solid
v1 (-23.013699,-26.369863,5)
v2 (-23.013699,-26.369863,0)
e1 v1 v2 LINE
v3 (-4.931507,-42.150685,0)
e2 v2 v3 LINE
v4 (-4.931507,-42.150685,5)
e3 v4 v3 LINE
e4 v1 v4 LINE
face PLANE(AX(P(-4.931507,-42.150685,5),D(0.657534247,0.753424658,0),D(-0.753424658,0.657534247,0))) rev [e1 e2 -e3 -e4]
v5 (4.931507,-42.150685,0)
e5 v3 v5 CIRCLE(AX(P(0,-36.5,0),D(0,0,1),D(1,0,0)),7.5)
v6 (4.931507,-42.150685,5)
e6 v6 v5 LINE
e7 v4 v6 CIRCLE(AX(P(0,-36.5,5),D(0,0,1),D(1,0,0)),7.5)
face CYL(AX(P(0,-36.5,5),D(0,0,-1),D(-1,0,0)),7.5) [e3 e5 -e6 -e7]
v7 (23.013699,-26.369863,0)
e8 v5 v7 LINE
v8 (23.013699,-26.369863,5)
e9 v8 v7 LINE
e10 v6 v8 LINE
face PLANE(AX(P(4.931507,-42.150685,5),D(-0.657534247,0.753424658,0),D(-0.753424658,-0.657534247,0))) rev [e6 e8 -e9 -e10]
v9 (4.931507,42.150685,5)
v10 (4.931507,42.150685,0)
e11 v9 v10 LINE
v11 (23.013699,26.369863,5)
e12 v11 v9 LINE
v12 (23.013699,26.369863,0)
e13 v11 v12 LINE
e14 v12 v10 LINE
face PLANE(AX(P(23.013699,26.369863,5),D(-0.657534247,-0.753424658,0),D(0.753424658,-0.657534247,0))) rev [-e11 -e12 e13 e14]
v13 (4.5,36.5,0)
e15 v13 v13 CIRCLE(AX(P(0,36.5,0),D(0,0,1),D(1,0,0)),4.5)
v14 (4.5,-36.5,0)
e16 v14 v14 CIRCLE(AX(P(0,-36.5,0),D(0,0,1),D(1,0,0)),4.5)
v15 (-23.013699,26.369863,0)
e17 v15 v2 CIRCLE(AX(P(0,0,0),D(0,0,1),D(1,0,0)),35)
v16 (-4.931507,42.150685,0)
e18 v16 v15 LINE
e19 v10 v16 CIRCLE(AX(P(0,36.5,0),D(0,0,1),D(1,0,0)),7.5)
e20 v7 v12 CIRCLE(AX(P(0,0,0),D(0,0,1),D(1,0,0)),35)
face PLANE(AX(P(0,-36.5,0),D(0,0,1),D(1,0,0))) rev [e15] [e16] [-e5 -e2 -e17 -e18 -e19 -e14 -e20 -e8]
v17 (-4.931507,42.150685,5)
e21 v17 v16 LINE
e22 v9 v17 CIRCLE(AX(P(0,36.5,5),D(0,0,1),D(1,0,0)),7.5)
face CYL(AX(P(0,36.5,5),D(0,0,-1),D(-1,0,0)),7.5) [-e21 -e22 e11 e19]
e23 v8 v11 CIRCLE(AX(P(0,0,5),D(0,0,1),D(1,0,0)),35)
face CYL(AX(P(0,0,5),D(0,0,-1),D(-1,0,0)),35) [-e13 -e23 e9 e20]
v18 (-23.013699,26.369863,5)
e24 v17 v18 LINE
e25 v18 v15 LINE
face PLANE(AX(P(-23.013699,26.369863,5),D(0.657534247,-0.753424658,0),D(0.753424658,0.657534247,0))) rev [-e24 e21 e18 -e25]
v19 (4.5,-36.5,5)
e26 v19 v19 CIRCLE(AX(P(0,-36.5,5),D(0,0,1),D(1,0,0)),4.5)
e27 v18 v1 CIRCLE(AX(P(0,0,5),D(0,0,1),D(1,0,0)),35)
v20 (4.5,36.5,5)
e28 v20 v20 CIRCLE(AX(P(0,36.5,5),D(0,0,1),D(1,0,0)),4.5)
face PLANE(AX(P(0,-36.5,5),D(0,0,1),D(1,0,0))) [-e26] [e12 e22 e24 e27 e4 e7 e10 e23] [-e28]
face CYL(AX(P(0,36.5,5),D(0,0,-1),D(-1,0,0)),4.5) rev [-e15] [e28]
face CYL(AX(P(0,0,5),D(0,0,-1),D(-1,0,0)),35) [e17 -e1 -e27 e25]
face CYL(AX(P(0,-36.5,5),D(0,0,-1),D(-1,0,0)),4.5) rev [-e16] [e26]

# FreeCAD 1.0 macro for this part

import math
import FreeCAD as App
import Part
import Sketcher
from FreeCAD import Vector
Q = App.Units.Quantity

doc = App.newDocument("Part")
body = doc.addObject("PartDesign::Body", "Body")

# Sketch on XY plane
sketch1 = body.newObject("Sketcher::SketchObject", "Sketch")
sketch1.AttachmentSupport = (doc.getObject("XY_Plane"), [""])
sketch1.MapMode = "FlatFace"
sketch1.addGeometry([
    Part.LineSegment(Vector(-23, -26.4, 0), Vector(-4.9, -42.2, 0)),  # 0
    Part.ArcOfCircle(Part.Circle(Vector(0, -36.5, 0), Vector(0, 0, 1), 7.5), math.radians(-131), math.radians(-49)),  # 1
    Part.LineSegment(Vector(4.9, -42.2, 0), Vector(23, -26.4, 0)),  # 2
    Part.ArcOfCircle(Part.Circle(Vector(0, 0, 0), Vector(0, 0, 1), 35), math.radians(-49), math.radians(49)),  # 3
    Part.LineSegment(Vector(23, 26.4, 0), Vector(4.9, 42.2, 0)),  # 4
    Part.ArcOfCircle(Part.Circle(Vector(0, 36.5, 0), Vector(0, 0, 1), 7.5), math.radians(49), math.radians(131)),  # 5
    Part.LineSegment(Vector(-4.9, 42.2, 0), Vector(-23, 26.4, 0)),  # 6
    Part.ArcOfCircle(Part.Circle(Vector(0, 0, 0), Vector(0, 0, 1), 35), math.radians(131), math.radians(229)),  # 7
    Part.Circle(Vector(0, -36.5, 0), Vector(0, 0, 1), 4.5),  # 8
    Part.Circle(Vector(0, 36.5, 0), Vector(0, 0, 1), 4.5),  # 9
], False)
sketch1.addConstraint([
    Sketcher.Constraint("Tangent", 0, 2, 1, 1),
    Sketcher.Constraint("Tangent", 1, 2, 2, 1),
    Sketcher.Constraint("Tangent", 2, 2, 3, 1),
    Sketcher.Constraint("Tangent", 3, 2, 4, 1),
    Sketcher.Constraint("Tangent", 4, 2, 5, 1),
    Sketcher.Constraint("Tangent", 5, 2, 6, 1),
    Sketcher.Constraint("Tangent", 6, 2, 7, 1),
    Sketcher.Constraint("Tangent", 7, 2, 0, 1),
    Sketcher.Constraint("Coincident", 3, 3, -1, 1),
    Sketcher.Constraint("Coincident", 7, 3, -1, 1),
    Sketcher.Constraint("Coincident", 8, 3, 1, 3),
    Sketcher.Constraint("Coincident", 9, 3, 5, 3),
    Sketcher.Constraint("Equal", 1, 5),
    Sketcher.Constraint("Equal", 3, 7),
    Sketcher.Constraint("Equal", 8, 9),
    Sketcher.Constraint("Symmetric", 1, 3, 5, 3, -1, 1),
    Sketcher.Constraint("PointOnObject", 1, 3, -2),
    Sketcher.Constraint("Diameter", 8, Q("9 mm")),
    Sketcher.Constraint("Radius", 3, Q("35 mm")),
    Sketcher.Constraint("Radius", 1, Q("7.5 mm")),
    Sketcher.Constraint("Distance", 0, Q("24 mm")),
])
pad1 = body.newObject("PartDesign::Pad", "Pad")
pad1.Profile = sketch1
pad1.Length = 5

doc.recompute()
